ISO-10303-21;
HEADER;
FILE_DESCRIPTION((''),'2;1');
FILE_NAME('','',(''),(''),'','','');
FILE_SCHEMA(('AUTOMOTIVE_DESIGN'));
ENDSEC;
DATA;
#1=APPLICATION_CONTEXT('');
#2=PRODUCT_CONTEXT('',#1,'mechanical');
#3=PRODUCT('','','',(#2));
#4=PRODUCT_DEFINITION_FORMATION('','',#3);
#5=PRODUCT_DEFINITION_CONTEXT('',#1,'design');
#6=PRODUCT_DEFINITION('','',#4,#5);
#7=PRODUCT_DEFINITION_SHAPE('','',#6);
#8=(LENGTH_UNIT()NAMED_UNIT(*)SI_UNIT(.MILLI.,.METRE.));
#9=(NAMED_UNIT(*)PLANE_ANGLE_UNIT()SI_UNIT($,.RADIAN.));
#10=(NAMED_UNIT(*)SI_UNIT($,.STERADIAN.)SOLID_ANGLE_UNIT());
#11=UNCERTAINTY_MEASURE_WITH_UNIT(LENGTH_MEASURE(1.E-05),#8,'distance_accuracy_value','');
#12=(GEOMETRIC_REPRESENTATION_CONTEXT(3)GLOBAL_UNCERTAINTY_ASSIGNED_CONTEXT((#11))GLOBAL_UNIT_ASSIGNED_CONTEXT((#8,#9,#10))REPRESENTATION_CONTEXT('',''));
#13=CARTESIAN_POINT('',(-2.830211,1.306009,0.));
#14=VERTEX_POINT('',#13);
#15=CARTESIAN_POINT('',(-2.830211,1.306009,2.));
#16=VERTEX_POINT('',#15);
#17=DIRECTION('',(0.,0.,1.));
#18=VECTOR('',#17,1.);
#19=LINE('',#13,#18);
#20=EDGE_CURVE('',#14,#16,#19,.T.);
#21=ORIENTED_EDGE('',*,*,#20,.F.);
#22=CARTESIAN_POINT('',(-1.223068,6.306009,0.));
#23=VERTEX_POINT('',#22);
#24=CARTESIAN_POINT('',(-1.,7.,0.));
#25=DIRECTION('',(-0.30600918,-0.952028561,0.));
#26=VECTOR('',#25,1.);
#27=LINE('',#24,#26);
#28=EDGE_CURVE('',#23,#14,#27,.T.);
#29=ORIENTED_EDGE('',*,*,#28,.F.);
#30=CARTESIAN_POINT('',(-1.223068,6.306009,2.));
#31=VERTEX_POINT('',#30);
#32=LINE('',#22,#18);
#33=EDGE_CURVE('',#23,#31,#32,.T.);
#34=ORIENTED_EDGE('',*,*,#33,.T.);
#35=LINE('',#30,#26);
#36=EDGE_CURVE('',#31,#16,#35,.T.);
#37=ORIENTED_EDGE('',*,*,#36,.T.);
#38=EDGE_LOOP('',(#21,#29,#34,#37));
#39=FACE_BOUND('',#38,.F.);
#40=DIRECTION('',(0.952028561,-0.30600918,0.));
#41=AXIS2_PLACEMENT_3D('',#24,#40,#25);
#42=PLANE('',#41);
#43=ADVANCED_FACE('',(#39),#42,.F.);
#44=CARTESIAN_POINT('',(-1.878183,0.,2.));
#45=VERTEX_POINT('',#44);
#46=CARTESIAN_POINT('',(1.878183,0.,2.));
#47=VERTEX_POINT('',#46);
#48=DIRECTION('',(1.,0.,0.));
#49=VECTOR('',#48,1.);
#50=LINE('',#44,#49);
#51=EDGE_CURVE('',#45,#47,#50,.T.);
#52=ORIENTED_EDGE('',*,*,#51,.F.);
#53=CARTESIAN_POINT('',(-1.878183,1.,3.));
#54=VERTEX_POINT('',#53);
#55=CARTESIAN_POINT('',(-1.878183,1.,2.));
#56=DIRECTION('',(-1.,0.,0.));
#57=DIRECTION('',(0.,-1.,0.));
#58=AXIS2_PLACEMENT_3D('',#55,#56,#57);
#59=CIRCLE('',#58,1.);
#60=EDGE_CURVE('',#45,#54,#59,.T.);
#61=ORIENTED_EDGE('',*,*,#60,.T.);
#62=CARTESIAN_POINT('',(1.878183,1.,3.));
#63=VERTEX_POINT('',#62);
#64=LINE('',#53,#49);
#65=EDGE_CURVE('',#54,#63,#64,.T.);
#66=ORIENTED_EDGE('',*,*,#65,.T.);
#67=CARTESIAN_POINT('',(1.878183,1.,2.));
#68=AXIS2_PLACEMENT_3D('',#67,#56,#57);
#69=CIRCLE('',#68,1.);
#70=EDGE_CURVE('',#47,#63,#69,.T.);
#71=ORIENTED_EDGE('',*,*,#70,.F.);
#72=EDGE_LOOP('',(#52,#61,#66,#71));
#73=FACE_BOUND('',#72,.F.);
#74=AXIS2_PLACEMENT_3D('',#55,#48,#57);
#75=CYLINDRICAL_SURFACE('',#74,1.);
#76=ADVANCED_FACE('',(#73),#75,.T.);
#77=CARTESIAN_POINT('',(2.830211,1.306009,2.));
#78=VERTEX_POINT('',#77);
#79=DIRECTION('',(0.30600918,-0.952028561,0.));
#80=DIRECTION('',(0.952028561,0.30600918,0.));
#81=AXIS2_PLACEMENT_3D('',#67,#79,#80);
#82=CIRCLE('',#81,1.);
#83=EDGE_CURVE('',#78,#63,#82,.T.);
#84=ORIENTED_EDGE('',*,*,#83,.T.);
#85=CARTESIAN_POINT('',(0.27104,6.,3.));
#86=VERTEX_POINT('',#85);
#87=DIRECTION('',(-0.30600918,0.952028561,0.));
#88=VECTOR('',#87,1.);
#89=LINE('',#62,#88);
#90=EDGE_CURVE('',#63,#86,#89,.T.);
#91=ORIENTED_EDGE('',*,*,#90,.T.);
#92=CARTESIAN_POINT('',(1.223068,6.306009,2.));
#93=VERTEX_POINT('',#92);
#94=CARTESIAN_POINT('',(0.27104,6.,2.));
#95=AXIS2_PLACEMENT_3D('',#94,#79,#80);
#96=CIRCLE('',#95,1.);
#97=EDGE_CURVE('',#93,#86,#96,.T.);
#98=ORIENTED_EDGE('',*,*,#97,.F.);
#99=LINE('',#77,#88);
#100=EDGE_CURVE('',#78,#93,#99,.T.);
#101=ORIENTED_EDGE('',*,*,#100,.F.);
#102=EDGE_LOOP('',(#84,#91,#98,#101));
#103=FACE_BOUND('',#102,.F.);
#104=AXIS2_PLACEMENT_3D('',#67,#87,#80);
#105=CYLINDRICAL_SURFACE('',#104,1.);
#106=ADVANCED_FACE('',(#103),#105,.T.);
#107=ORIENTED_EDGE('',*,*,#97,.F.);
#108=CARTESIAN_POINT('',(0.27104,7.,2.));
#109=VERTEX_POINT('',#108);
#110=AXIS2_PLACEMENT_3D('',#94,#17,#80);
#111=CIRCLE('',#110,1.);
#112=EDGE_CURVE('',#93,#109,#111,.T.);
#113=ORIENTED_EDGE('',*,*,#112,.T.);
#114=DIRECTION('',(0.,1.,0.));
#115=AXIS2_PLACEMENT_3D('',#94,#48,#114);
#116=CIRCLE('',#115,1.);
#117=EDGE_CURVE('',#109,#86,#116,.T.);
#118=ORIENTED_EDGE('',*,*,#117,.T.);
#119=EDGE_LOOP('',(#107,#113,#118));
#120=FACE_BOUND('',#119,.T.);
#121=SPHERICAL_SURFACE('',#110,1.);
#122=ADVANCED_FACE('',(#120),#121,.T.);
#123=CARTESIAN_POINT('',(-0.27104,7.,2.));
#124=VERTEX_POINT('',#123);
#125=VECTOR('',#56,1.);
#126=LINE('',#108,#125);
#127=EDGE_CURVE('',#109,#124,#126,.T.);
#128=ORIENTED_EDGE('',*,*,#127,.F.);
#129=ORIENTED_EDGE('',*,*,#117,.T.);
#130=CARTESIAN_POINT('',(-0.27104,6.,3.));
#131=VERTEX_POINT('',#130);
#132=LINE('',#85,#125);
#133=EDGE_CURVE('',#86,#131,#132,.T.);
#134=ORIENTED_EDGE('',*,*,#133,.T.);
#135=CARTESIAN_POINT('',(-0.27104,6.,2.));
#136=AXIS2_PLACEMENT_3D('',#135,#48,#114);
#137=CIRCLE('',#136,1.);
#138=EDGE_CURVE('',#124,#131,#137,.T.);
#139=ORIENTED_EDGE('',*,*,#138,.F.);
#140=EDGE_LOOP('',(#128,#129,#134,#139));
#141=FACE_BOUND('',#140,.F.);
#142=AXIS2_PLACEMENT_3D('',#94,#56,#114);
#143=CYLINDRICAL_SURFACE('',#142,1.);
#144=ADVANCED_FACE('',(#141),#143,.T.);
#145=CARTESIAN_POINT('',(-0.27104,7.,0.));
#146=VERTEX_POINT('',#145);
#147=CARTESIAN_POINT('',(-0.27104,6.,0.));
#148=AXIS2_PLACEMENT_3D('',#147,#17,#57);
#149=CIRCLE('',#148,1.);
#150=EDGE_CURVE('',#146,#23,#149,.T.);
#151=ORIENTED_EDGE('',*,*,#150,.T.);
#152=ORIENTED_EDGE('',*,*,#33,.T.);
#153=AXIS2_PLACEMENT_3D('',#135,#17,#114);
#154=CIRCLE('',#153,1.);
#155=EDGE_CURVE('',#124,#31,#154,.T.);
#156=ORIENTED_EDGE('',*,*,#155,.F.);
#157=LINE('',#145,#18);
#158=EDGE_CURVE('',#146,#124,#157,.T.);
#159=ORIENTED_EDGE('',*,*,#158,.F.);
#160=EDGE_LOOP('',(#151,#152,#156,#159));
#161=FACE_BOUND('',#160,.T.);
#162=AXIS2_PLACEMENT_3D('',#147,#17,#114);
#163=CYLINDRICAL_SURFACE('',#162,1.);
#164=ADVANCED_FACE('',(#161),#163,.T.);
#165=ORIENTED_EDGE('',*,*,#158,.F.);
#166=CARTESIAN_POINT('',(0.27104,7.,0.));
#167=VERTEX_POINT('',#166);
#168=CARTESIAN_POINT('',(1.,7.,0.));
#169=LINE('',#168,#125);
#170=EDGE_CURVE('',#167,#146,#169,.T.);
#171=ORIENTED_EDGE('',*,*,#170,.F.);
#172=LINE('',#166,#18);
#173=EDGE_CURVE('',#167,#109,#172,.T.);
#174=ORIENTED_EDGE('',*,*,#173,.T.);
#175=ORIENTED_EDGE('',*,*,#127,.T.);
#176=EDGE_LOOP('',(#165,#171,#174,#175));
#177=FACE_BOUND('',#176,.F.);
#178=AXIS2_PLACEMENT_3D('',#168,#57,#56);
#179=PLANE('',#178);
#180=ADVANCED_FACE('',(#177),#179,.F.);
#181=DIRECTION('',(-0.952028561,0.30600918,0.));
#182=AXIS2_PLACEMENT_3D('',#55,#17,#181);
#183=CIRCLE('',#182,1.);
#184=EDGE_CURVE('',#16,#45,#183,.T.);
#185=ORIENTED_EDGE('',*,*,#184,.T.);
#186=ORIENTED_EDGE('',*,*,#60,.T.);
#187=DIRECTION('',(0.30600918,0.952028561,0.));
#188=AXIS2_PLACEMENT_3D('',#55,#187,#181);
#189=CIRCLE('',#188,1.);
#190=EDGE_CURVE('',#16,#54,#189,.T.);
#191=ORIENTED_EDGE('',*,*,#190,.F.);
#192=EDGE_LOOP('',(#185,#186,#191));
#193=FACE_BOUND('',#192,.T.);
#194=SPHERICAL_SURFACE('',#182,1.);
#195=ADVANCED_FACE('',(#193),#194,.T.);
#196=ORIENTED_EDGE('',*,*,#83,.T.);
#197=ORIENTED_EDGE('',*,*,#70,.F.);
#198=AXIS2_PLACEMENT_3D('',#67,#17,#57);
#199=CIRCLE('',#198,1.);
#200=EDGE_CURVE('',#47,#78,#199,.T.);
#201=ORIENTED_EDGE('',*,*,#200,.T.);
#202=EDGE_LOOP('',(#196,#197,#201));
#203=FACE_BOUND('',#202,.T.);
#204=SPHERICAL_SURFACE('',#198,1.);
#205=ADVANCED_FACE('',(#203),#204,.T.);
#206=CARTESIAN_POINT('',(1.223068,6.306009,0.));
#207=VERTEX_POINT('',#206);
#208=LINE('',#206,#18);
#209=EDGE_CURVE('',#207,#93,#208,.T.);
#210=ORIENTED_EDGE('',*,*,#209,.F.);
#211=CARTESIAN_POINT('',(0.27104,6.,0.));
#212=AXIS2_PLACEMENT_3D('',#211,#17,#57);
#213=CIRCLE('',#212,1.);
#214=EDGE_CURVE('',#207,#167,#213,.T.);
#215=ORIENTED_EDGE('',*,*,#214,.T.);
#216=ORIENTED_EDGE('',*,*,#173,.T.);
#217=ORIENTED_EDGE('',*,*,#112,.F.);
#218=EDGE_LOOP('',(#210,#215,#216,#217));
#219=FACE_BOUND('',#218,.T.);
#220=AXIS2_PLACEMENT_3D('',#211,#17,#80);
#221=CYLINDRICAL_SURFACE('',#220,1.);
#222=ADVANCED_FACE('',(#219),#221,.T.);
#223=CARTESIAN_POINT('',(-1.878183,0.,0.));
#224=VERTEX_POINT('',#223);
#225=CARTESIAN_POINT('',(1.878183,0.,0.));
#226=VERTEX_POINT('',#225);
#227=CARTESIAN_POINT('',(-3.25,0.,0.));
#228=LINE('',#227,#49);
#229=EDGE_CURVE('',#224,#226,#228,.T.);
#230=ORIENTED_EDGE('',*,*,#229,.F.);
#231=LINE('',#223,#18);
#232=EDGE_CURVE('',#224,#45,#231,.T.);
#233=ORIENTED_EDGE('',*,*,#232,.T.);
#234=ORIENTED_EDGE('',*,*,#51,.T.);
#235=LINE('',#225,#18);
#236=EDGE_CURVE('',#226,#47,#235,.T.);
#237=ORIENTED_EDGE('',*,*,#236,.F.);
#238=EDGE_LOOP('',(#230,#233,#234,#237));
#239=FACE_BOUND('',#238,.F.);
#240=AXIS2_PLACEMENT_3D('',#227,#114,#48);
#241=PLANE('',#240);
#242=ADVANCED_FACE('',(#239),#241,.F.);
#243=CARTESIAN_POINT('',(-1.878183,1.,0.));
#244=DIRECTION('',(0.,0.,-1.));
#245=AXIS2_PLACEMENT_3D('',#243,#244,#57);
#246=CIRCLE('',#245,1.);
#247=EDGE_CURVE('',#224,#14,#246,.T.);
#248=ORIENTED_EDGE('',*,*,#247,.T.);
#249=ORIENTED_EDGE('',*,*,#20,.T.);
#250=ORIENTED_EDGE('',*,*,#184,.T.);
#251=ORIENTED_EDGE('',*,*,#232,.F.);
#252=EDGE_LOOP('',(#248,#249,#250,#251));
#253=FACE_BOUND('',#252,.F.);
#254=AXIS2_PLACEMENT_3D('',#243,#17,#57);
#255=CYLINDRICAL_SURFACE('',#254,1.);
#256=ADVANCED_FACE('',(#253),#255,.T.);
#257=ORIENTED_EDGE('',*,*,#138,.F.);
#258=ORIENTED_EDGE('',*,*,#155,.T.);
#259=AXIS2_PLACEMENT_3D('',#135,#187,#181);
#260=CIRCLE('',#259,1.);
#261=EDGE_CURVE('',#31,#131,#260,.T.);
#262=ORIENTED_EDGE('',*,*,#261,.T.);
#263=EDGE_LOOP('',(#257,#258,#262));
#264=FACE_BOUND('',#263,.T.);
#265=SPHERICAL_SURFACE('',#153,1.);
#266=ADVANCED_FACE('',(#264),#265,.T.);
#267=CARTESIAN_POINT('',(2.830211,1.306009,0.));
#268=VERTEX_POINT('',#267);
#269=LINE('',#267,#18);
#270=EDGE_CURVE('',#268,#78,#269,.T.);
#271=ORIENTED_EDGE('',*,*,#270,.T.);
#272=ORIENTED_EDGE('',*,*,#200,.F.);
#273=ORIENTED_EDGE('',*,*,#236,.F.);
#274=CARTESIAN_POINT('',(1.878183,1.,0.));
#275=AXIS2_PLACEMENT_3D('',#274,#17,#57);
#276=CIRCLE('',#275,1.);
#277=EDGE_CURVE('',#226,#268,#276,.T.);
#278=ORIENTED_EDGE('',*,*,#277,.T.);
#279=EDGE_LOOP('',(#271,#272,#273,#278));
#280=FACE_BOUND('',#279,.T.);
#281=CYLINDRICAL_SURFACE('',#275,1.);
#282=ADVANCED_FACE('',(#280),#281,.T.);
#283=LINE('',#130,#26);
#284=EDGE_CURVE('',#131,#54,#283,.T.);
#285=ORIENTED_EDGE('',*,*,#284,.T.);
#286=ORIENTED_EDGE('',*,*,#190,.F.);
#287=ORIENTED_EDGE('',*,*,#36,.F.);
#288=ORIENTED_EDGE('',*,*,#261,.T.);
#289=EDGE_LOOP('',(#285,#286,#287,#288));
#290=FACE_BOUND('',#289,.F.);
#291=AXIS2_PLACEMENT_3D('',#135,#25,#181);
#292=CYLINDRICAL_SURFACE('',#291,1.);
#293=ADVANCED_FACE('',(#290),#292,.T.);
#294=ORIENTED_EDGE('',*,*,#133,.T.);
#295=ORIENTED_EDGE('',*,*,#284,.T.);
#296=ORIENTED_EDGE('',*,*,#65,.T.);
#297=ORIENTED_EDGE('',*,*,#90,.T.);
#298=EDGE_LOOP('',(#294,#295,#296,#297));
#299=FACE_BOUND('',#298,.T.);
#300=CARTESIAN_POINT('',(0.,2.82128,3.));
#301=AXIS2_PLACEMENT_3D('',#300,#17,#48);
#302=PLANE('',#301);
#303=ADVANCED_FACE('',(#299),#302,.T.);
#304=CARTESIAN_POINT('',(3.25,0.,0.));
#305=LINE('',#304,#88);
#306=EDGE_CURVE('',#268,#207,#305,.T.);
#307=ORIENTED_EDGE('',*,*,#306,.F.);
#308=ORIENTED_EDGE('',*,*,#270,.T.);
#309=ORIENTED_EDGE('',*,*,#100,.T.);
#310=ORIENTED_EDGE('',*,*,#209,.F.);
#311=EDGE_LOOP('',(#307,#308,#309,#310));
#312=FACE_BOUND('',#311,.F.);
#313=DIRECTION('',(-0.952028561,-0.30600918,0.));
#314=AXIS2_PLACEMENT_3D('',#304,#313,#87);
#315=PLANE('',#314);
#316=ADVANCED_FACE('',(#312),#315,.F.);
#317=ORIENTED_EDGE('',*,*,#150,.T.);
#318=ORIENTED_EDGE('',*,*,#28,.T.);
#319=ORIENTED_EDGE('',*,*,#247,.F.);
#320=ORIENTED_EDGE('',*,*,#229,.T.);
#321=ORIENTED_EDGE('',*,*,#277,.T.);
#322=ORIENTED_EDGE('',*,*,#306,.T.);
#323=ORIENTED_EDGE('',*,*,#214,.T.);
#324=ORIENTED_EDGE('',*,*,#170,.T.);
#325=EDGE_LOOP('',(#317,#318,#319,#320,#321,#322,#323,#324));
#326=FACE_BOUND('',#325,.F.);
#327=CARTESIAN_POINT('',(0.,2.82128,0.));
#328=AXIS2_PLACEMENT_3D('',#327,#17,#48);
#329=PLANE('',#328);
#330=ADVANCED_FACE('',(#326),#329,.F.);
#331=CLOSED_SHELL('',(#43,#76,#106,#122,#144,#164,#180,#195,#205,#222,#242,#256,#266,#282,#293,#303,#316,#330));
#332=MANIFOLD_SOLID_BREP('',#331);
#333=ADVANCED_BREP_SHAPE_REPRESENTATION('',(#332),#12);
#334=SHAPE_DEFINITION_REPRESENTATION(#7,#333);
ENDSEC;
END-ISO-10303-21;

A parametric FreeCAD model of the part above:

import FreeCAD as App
import Part
import Sketcher
from FreeCAD import Vector


def edges_at(feature, points):
    """Names of the edges that pass closest to the given points."""
    edges = feature.Shape.Edges
    near = lambda p: min(range(len(edges)), key=lambda i: edges[i].distToShape(Part.Vertex(*p))[0])
    return sorted({f"Edge{near(p) + 1}" for p in points})

doc = App.newDocument("Part")
body = doc.addObject("PartDesign::Body", "Body")

# Sketch on XY plane
sketch1 = doc.addObject("Sketcher::SketchObject", "Sketch")
body.addObject(sketch1)
sketch1.AttachmentSupport = (doc.XY_Plane, [""])
sketch1.MapMode = "FlatFace"
sketch1.addGeometry(Part.LineSegment(Vector(-3.2, 0, 0), Vector(3.2, 0, 0)), False)
sketch1.addGeometry(Part.LineSegment(Vector(3.2, 0, 0), Vector(1, 7, 0)), False)
sketch1.addGeometry(Part.LineSegment(Vector(1, 7, 0), Vector(-1, 7, 0)), False)
sketch1.addGeometry(Part.LineSegment(Vector(-1, 7, 0), Vector(-3.2, 0, 0)), False)
sketch1.addConstraint(Sketcher.Constraint("Coincident", 0, 2, 1, 1))
sketch1.addConstraint(Sketcher.Constraint("Coincident", 1, 2, 2, 1))
sketch1.addConstraint(Sketcher.Constraint("Coincident", 2, 2, 3, 1))
sketch1.addConstraint(Sketcher.Constraint("Coincident", 3, 2, 0, 1))
sketch1.addConstraint(Sketcher.Constraint("Horizontal", 0))
sketch1.addConstraint(Sketcher.Constraint("Horizontal", 2))
sketch1.addConstraint(Sketcher.Constraint("Symmetric", 0, 2, 3, 2, -1, 1))
sketch1.addConstraint(Sketcher.Constraint("Equal", 1, 3))
sketch1.addConstraint(Sketcher.Constraint("DistanceX", 2, 2, 2, 1, 2.0))
sketch1.addConstraint(Sketcher.Constraint("DistanceX", 0, 1, 0, 2, 6.5))
sketch1.addConstraint(Sketcher.Constraint("DistanceY", -1, 1, 1, 2, 7.0))
pad1 = doc.addObject("PartDesign::Pad", "Pad")
body.addObject(pad1)
pad1.Profile = sketch1
pad1.Length = 3
doc.recompute()

fillet = doc.addObject("PartDesign::Fillet", "Fillet")
body.addObject(fillet)
fillet.Base = (pad1, edges_at(pad1, [
    (-3.25, 0, 1.5),
    (3.25, 0, 1.5),
    (1, 7, 1.5),
    (-1, 7, 1.5),
]))
fillet.Radius = 1
doc.recompute()

fillet2 = doc.addObject("PartDesign::Fillet", "Fillet001")
body.addObject(fillet2)
fillet2.Base = (fillet, edges_at(fillet, [
    (0, 0, 3),
    (-2.686, 0.411, 3),
    (2.686, 0.411, 3),
    (-2.027, 3.806, 3),
    (2.027, 3.806, 3),
    (-0.86, 6.808, 3),
    (0.86, 6.808, 3),
    (0, 7, 3),
]))
fillet2.Radius = 1

doc.recompute()
